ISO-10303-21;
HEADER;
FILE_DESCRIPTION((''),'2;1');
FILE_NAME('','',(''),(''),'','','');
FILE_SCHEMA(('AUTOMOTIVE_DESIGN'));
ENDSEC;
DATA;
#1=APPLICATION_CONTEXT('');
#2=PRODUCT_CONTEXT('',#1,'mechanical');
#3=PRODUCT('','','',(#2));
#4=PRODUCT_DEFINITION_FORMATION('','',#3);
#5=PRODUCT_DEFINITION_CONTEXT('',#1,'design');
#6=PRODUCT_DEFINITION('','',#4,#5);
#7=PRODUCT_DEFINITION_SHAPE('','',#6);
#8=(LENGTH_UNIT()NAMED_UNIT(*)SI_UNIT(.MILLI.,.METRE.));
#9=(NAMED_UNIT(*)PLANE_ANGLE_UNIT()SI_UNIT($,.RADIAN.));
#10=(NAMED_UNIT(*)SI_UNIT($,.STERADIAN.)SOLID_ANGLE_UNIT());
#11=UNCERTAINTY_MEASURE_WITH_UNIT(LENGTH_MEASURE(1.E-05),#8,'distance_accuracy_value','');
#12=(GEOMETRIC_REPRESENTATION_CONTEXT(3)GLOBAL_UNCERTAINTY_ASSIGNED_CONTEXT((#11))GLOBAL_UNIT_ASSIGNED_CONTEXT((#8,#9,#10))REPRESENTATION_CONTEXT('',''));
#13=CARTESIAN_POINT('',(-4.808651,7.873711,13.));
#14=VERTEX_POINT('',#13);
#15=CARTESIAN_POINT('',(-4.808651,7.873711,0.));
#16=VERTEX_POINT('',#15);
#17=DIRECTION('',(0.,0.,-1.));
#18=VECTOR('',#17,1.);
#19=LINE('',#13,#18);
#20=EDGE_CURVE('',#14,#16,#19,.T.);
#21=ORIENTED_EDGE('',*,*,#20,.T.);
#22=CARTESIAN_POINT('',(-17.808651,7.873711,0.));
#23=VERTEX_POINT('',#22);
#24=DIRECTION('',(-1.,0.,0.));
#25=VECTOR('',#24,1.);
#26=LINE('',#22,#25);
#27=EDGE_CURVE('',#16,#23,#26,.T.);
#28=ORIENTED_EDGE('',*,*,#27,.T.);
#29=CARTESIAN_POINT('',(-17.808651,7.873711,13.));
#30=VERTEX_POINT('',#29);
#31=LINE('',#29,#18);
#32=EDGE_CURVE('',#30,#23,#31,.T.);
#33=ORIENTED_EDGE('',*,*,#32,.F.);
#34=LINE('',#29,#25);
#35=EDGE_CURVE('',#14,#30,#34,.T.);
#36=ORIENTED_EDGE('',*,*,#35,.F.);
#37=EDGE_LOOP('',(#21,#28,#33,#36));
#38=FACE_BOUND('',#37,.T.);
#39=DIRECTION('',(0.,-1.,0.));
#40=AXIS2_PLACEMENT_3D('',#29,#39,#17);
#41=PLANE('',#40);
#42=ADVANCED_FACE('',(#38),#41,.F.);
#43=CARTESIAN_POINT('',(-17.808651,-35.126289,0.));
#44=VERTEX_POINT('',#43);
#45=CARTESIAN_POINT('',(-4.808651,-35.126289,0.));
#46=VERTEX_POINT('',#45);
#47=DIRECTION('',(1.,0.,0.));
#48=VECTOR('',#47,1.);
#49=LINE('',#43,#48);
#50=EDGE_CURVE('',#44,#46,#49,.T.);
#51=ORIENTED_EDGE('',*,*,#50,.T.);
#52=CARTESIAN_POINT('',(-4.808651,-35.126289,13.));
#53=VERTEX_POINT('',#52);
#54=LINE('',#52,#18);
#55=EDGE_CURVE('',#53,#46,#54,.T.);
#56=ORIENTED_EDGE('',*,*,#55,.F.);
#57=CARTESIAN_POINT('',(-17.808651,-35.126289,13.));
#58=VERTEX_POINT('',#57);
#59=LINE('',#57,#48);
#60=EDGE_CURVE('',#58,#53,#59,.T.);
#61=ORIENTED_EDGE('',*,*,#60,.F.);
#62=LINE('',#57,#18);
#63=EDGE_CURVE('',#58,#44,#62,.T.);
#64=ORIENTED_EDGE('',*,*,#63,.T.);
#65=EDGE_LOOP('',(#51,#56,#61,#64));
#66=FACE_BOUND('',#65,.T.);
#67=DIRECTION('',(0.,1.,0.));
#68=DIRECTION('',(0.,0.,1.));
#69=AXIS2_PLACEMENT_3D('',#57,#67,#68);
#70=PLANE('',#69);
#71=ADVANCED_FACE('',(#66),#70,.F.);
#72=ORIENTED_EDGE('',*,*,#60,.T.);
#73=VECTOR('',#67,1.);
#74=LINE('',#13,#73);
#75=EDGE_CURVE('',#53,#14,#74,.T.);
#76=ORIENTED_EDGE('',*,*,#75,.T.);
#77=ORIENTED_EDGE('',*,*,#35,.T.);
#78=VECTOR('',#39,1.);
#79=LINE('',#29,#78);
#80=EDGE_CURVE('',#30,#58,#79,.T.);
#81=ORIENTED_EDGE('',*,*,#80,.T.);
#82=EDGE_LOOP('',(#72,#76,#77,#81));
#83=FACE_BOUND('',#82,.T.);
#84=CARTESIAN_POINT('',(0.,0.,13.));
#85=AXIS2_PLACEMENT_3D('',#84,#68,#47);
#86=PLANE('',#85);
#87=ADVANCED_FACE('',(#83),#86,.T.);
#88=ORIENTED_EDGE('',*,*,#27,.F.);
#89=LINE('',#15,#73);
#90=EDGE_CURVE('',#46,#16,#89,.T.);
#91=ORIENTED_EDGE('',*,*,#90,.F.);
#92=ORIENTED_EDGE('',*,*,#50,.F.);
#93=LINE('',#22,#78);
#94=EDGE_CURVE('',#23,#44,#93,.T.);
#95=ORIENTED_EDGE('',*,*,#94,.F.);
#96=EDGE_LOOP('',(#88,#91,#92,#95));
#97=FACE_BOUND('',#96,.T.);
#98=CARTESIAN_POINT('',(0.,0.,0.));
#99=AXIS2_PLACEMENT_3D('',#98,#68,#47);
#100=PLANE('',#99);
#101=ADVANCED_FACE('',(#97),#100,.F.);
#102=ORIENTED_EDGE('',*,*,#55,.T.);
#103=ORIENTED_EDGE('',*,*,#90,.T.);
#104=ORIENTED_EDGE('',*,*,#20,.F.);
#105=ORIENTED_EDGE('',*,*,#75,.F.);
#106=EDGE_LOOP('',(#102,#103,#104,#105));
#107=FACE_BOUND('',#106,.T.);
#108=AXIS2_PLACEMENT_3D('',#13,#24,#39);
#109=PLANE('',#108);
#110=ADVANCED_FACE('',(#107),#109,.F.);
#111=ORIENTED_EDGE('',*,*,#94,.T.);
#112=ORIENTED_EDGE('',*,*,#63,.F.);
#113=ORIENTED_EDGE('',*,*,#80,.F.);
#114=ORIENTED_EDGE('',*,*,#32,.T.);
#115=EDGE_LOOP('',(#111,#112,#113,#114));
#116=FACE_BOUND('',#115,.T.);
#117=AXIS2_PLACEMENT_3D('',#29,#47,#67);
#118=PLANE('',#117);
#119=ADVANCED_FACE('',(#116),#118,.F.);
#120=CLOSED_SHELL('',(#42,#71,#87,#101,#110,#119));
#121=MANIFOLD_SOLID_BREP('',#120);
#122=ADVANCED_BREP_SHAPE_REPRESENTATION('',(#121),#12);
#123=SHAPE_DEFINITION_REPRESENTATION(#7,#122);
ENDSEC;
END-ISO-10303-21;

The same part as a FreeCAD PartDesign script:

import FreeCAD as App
import Part
import Sketcher
Q = App.Units.Quantity


def add_polygon(sketch, points):
    """Adds a closed chain of lines whose ends are joined by coincident constraints."""
    first, n = sketch.GeometryCount, len(points)
    for a, b in zip(points, points[1:] + points[:1]):
        sketch.addGeometry(Part.LineSegment(App.Vector(*a, 0), App.Vector(*b, 0)), False)
    for i in range(n):
        sketch.addConstraint(Sketcher.Constraint("Coincident", first + i, 2, first + (i + 1) % n, 1))

doc = App.newDocument("Part")
params = doc.addObject("Spreadsheet::Sheet", "Params")
for row, (alias, value) in enumerate([
    ("sketch1_width", "13 mm"),
    ("sketch1_height", "43 mm"),
    ("pad1_length", "13 mm"),
], start=1):
    params.set(f"A{row}", alias)
    params.set(f"B{row}", "=" + value)
    params.setAlias(f"B{row}", alias)

body = doc.addObject("PartDesign::Body", "Body")

sketch1 = body.newObject("Sketcher::SketchObject", "Sketch")
sketch1.AttachmentSupport = (doc.getObject("XY_Plane"), [""])
sketch1.MapMode = "FlatFace"
add_polygon(sketch1, [(-18, 8), (-18, -35), (-5, -35), (-5, 8)])
sketch1.addConstraint(Sketcher.Constraint("Vertical", 0))
sketch1.addConstraint(Sketcher.Constraint("Horizontal", 1))
sketch1.addConstraint(Sketcher.Constraint("Vertical", 2))
sketch1.addConstraint(Sketcher.Constraint("Horizontal", 3))
sketch1.addConstraint(Sketcher.Constraint("DistanceX", 1, 1, 1, 2, Q("13 mm")))
sketch1.addConstraint(Sketcher.Constraint("DistanceY", 0, 2, 0, 1, Q("43 mm")))
sketch1.addConstraint(Sketcher.Constraint("DistanceX", 0, 2, -1, 1, Q("17.808651 mm")))
sketch1.addConstraint(Sketcher.Constraint("DistanceY", 0, 2, -1, 1, Q("35.126289 mm")))
sketch1.setExpression("Constraints[8]", "Params.sketch1_width")
sketch1.setExpression("Constraints[9]", "Params.sketch1_height")
pad1 = body.newObject("PartDesign::Pad", "Pad")
pad1.Profile = sketch1
pad1.setExpression("Length", "Params.pad1_length")

doc.recompute()
